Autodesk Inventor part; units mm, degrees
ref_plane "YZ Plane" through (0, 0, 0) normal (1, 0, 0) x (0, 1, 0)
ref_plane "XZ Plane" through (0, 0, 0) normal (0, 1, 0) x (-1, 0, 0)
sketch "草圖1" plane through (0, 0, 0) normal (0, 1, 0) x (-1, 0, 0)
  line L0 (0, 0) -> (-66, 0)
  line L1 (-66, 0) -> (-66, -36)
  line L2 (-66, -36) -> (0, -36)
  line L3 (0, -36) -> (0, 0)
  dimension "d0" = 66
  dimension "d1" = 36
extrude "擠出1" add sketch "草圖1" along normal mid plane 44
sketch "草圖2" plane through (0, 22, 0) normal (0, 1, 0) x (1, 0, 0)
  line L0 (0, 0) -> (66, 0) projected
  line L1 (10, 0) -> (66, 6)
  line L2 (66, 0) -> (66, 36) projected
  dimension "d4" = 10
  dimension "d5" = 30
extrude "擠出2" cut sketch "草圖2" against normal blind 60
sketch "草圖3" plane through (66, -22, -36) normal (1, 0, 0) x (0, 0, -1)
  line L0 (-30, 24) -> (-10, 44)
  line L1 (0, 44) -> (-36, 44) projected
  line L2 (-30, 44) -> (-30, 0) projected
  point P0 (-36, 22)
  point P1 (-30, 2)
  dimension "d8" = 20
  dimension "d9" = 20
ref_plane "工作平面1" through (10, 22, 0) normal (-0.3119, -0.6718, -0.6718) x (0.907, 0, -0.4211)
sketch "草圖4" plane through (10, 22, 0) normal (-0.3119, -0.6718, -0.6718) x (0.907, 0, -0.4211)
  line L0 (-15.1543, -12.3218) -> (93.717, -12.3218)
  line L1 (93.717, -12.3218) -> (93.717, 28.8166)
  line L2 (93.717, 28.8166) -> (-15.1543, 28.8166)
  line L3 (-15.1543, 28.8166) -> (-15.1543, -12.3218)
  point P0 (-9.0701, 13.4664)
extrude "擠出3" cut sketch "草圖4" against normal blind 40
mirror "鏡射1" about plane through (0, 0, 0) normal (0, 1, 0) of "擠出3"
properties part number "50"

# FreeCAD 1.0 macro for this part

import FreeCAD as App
import Part
import Sketcher

V = App.Vector

doc = App.newDocument("Part")
body = doc.addObject("PartDesign::Body", "Body")

# Sketch on XZ plane
sketch1 = body.newObject("Sketcher::SketchObject", "Sketch")
sketch1.AttachmentSupport = (doc.getObject("XZ_Plane"), [""])
sketch1.MapMode = "FlatFace"
sketch1.addGeometry(Part.LineSegment(V(0, -36, 0), V(0, 0, 0)), False)
sketch1.addGeometry(Part.LineSegment(V(0, 0, 0), V(66, 0, 0)), False)
sketch1.addGeometry(Part.LineSegment(V(66, 0, 0), V(66, -36, 0)), False)
sketch1.addGeometry(Part.LineSegment(V(66, -36, 0), V(0, -36, 0)), False)
sketch1.addConstraint(Sketcher.Constraint("Coincident", 0, 2, 1, 1))
sketch1.addConstraint(Sketcher.Constraint("Coincident", 1, 2, 2, 1))
sketch1.addConstraint(Sketcher.Constraint("Coincident", 2, 2, 3, 1))
sketch1.addConstraint(Sketcher.Constraint("Coincident", 3, 2, 0, 1))
sketch1.addConstraint(Sketcher.Constraint("Vertical", 0))
sketch1.addConstraint(Sketcher.Constraint("Horizontal", 1))
sketch1.addConstraint(Sketcher.Constraint("Vertical", 2))
sketch1.addConstraint(Sketcher.Constraint("Horizontal", 3))
sketch1.addConstraint(Sketcher.Constraint("Coincident", 0, 2, -1, 1))
sketch1.addConstraint(Sketcher.Constraint("DistanceX", 1, 1, 1, 2, 66.0))
sketch1.addConstraint(Sketcher.Constraint("DistanceY", 0, 1, 0, 2, 36.0))
pad1 = body.newObject("PartDesign::Pad", "Pad")
pad1.Profile = sketch1
pad1.Length = 44
pad1.Midplane = True

# Sketch on XZ plane
sketch2 = body.newObject("Sketcher::SketchObject", "Sketch001")
sketch2.AttachmentSupport = (doc.getObject("XZ_Plane"), [""])
sketch2.MapMode = "FlatFace"
sketch2.AttachmentOffset = App.Placement(V(0, 0, -22), App.Rotation())
sketch2.addGeometry(Part.LineSegment(V(66, -6, 0), V(10, 0, 0)), False)
sketch2.addGeometry(Part.LineSegment(V(10, 0, 0), V(66, 0, 0)), False)
sketch2.addGeometry(Part.LineSegment(V(66, 0, 0), V(66, -6, 0)), False)
sketch2.addConstraint(Sketcher.Constraint("Coincident", 0, 2, 1, 1))
sketch2.addConstraint(Sketcher.Constraint("Coincident", 1, 2, 2, 1))
sketch2.addConstraint(Sketcher.Constraint("Coincident", 2, 2, 0, 1))
sketch2.addConstraint(Sketcher.Constraint("Horizontal", 1))
sketch2.addConstraint(Sketcher.Constraint("Vertical", 2))
sketch2.addConstraint(Sketcher.Constraint("PointOnObject", 0, 2, -1))
sketch2.addConstraint(Sketcher.Constraint("DistanceX", -1, 1, 0, 2, 10.0))
sketch2.addConstraint(Sketcher.Constraint("DistanceX", 1, 1, 1, 2, 56.0))
sketch2.addConstraint(Sketcher.Constraint("DistanceY", 2, 2, 2, 1, 6.0))
pocket1 = body.newObject("PartDesign::Pocket", "Pocket")
pocket1.Profile = sketch2
pocket1.Length = 60
pocket1.Reversed = True

# Sketch on an angled plane
sketch3 = body.newObject("Sketcher::SketchObject", "Sketch002")
sketch3.Placement = App.Placement(V(10, 22, 0), App.Rotation(V(0.90701222, 0.000001129, -0.421104301), V(0.282911064, -0.740705799, 0.609357242), V(-0.31191371, -0.671829531, -0.671829531), "ZXY"))
sketch3.addGeometry(Part.LineSegment(V(-15, 29, 0), V(-15, -12, 0)), False)
sketch3.addGeometry(Part.LineSegment(V(-15, -12, 0), V(94, -12, 0)), False)
sketch3.addGeometry(Part.LineSegment(V(94, -12, 0), V(94, 29, 0)), False)
sketch3.addGeometry(Part.LineSegment(V(94, 29, 0), V(-15, 29, 0)), False)
sketch3.addConstraint(Sketcher.Constraint("Coincident", 0, 2, 1, 1))
sketch3.addConstraint(Sketcher.Constraint("Coincident", 1, 2, 2, 1))
sketch3.addConstraint(Sketcher.Constraint("Coincident", 2, 2, 3, 1))
sketch3.addConstraint(Sketcher.Constraint("Coincident", 3, 2, 0, 1))
sketch3.addConstraint(Sketcher.Constraint("Vertical", 0))
sketch3.addConstraint(Sketcher.Constraint("Horizontal", 1))
sketch3.addConstraint(Sketcher.Constraint("Vertical", 2))
sketch3.addConstraint(Sketcher.Constraint("Horizontal", 3))
sketch3.addConstraint(Sketcher.Constraint("DistanceX", 1, 1, 1, 2, 108.8713))
sketch3.addConstraint(Sketcher.Constraint("DistanceY", 0, 2, 0, 1, 41.1384))
sketch3.addConstraint(Sketcher.Constraint("DistanceX", -1, 1, 1, 2, 93.717))
sketch3.addConstraint(Sketcher.Constraint("DistanceY", 0, 2, -1, 1, 12.3218))
pocket2 = body.newObject("PartDesign::Pocket", "Pocket001")
pocket2.Profile = sketch3
pocket2.Length = 40
doc.recompute()

mirrored = body.newObject("PartDesign::Mirrored", "Mirrored")
mirrored.Originals = [pocket2]
mirrored.MirrorPlane = (doc.getObject("XZ_Plane"), [""])
body.Tip = mirrored

doc.recompute()
